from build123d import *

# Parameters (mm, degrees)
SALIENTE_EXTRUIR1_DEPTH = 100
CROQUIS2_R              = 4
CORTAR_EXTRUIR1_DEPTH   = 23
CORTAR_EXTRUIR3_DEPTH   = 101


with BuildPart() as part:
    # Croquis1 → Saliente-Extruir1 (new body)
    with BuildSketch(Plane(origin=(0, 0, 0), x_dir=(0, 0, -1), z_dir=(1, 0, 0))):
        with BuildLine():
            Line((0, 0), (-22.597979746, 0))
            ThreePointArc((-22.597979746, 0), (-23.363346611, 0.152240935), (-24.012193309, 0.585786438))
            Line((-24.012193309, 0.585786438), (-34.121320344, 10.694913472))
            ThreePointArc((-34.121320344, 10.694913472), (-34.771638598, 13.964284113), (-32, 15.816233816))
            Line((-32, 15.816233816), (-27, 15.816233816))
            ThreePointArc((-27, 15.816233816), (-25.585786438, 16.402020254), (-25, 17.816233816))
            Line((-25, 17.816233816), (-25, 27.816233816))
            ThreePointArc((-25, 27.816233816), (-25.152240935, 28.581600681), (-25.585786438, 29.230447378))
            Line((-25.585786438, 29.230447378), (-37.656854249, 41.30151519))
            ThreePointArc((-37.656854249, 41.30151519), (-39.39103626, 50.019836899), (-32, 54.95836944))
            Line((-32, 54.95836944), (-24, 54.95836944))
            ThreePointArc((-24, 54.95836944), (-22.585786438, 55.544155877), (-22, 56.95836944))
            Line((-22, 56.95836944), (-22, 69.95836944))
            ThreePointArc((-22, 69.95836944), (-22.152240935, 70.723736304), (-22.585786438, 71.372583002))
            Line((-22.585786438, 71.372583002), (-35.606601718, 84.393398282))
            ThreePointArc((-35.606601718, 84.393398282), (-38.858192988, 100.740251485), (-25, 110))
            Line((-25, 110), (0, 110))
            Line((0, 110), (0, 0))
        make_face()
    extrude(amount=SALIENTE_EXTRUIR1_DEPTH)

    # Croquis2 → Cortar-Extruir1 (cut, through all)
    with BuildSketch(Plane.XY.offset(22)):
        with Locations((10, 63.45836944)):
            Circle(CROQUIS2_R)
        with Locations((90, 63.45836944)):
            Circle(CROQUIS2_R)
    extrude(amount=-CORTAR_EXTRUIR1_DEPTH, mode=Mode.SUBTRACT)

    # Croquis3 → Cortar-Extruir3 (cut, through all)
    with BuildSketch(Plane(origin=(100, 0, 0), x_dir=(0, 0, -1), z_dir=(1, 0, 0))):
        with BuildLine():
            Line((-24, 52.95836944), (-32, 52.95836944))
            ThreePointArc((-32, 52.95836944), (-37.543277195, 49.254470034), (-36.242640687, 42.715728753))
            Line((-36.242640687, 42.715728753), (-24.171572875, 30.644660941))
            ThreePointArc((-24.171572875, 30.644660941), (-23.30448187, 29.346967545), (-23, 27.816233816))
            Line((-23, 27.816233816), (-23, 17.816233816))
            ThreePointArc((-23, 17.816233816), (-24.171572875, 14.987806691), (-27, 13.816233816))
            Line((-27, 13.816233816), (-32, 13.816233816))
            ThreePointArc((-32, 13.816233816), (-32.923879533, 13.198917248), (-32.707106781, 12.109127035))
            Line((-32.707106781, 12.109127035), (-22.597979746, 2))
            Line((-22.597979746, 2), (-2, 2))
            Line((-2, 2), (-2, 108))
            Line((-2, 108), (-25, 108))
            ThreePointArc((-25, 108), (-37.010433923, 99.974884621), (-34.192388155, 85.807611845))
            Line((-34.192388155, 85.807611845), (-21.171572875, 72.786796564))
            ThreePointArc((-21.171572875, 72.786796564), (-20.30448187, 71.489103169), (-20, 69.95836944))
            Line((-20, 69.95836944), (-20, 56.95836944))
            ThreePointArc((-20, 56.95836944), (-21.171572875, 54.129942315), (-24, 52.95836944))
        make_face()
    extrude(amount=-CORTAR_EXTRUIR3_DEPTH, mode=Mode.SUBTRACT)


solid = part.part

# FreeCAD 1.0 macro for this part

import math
import FreeCAD as App
import Part
import Sketcher
from FreeCAD import Vector
Q = App.Units.Quantity

doc = App.newDocument("Part")
body = doc.addObject("PartDesign::Body", "Body")

# Sketch on YZ plane
sketch1 = body.newObject("Sketcher::SketchObject", "Sketch")
sketch1.AttachmentSupport = (doc.getObject("YZ_Plane"), [""])
sketch1.MapMode = "FlatFace"
sketch1.addGeometry([
    Part.LineSegment(Vector(0, 22.6, 0), Vector(0, 0, 0)),  # 0
    Part.LineSegment(Vector(0, 0, 0), Vector(110, 0, 0)),  # 1
    Part.LineSegment(Vector(110, 0, 0), Vector(110, 25, 0)),  # 2
    Part.ArcOfCircle(Part.Circle(Vector(95, 25, 0), Vector(0, 0, 1), 15), math.radians(0), math.radians(135)),  # 3
    Part.LineSegment(Vector(84.4, 35.6, 0), Vector(71.4, 22.6, 0)),  # 4
    Part.ArcOfCircle(Part.Circle(Vector(70, 24, 0), Vector(0, 0, 1), 2), math.radians(-90), math.radians(-45)),  # 5
    Part.LineSegment(Vector(70, 22, 0), Vector(57, 22, 0)),  # 6
    Part.ArcOfCircle(Part.Circle(Vector(57, 24, 0), Vector(0, 0, 1), 2), math.radians(180), math.radians(270)),  # 7
    Part.LineSegment(Vector(55, 24, 0), Vector(55, 32, 0)),  # 8
    Part.ArcOfCircle(Part.Circle(Vector(47, 32, 0), Vector(0, 0, 1), 8), math.radians(0), math.radians(135)),  # 9
    Part.LineSegment(Vector(41.3, 37.7, 0), Vector(29.2, 25.6, 0)),  # 10
    Part.ArcOfCircle(Part.Circle(Vector(27.8, 27, 0), Vector(0, 0, 1), 2), math.radians(-90), math.radians(-45)),  # 11
    Part.LineSegment(Vector(27.8, 25, 0), Vector(17.8, 25, 0)),  # 12
    Part.ArcOfCircle(Part.Circle(Vector(17.8, 27, 0), Vector(0, 0, 1), 2), math.radians(-180), math.radians(-90)),  # 13
    Part.LineSegment(Vector(15.8, 27, 0), Vector(15.8, 32, 0)),  # 14
    Part.ArcOfCircle(Part.Circle(Vector(12.8, 32, 0), Vector(0, 0, 1), 3), math.radians(0), math.radians(135)),  # 15
    Part.LineSegment(Vector(10.7, 34.1, 0), Vector(0.6, 24, 0)),  # 16
    Part.ArcOfCircle(Part.Circle(Vector(2, 22.6, 0), Vector(0, 0, 1), 2), math.radians(135), math.radians(180)),  # 17
], False)
sketch1.addConstraint([
    Sketcher.Constraint("Coincident", 0, 2, 1, 1),
    Sketcher.Constraint("Coincident", 1, 2, 2, 1),
    Sketcher.Constraint("Tangent", 2, 2, 3, 1),
    Sketcher.Constraint("Tangent", 3, 2, 4, 1),
    Sketcher.Constraint("Tangent", 4, 2, 5, 2),
    Sketcher.Constraint("Tangent", 5, 1, 6, 1),
    Sketcher.Constraint("Tangent", 6, 2, 7, 2),
    Sketcher.Constraint("Tangent", 7, 1, 8, 1),
    Sketcher.Constraint("Tangent", 8, 2, 9, 1),
    Sketcher.Constraint("Tangent", 9, 2, 10, 1),
    Sketcher.Constraint("Tangent", 10, 2, 11, 2),
    Sketcher.Constraint("Tangent", 11, 1, 12, 1),
    Sketcher.Constraint("Tangent", 12, 2, 13, 2),
    Sketcher.Constraint("Tangent", 13, 1, 14, 1),
    Sketcher.Constraint("Tangent", 14, 2, 15, 1),
    Sketcher.Constraint("Tangent", 15, 2, 16, 1),
    Sketcher.Constraint("Tangent", 16, 2, 17, 1),
    Sketcher.Constraint("Tangent", 17, 2, 0, 1),
    Sketcher.Constraint("Vertical", 0),
    Sketcher.Constraint("Horizontal", 1),
    Sketcher.Constraint("Vertical", 2),
    Sketcher.Constraint("Horizontal", 6),
    Sketcher.Constraint("Vertical", 8),
    Sketcher.Constraint("Horizontal", 12),
    Sketcher.Constraint("Vertical", 14),
    Sketcher.Constraint("Coincident", 0, 2, -1, 1),
    Sketcher.Constraint("Equal", 5, 7),
    Sketcher.Constraint("Equal", 7, 11),
    Sketcher.Constraint("Equal", 11, 13),
    Sketcher.Constraint("Equal", 13, 17),
    Sketcher.Constraint("Parallel", 4, 10),
    Sketcher.Constraint("Parallel", 10, 16),
    Sketcher.Constraint("Horizontal", 9, 3, 15, 3),
    Sketcher.Constraint("Horizontal", 2, 2, 11, 1),
    Sketcher.Constraint("Radius", 3, Q("15 mm")),
    Sketcher.Constraint("Radius", 5, Q("2 mm")),
    Sketcher.Constraint("Radius", 9, Q("8 mm")),
    Sketcher.Constraint("Radius", 15, Q("3 mm")),
    Sketcher.Constraint("DistanceX", 1, 1, 1, 2, Q("110 mm")),
    Sketcher.Constraint("DistanceX", 6, 2, 6, 1, Q("13 mm")),
    Sketcher.Constraint("DistanceX", 12, 2, 12, 1, Q("10 mm")),
    Sketcher.Constraint("DistanceY", 2, 1, 2, 2, Q("25 mm")),
    Sketcher.Constraint("DistanceY", 8, 1, 8, 2, Q("8 mm")),
    Sketcher.Constraint("DistanceY", 14, 1, 14, 2, Q("5 mm")),
    Sketcher.Constraint("Angle", 4, Q("-135 deg")),
])
pad1 = body.newObject("PartDesign::Pad", "Pad")
pad1.Profile = sketch1
pad1.Length = 100

# Sketch on XY plane
sketch2 = body.newObject("Sketcher::SketchObject", "Sketch001")
sketch2.AttachmentSupport = (doc.getObject("XY_Plane"), [""])
sketch2.MapMode = "FlatFace"
sketch2.AttachmentOffset = App.Placement(Vector(0, 0, 22), App.Rotation())
sketch2.addGeometry([
    Part.Circle(Vector(10, 63.5, 0), Vector(0, 0, 1), 4),
    Part.Circle(Vector(90, 63.5, 0), Vector(0, 0, 1), 4),
], False)
sketch2.addConstraint([
    Sketcher.Constraint("Equal", 0, 1),
    Sketcher.Constraint("Horizontal", 0, 3, 1, 3),
    Sketcher.Constraint("Diameter", 0, Q("8 mm")),
    Sketcher.Constraint("DistanceX", -1, 1, 0, 3, Q("10 mm")),
    Sketcher.Constraint("DistanceX", -1, 1, 1, 3, Q("90 mm")),
    Sketcher.Constraint("DistanceY", -1, 1, 0, 3, Q("63.458369 mm")),
])
pocket1 = body.newObject("PartDesign::Pocket", "Pocket")
pocket1.Profile = sketch2
pocket1.Type = "ThroughAll"

# Sketch on YZ plane
sketch3 = body.newObject("Sketcher::SketchObject", "Sketch002")
sketch3.AttachmentSupport = (doc.getObject("YZ_Plane"), [""])
sketch3.MapMode = "FlatFace"
sketch3.AttachmentOffset = App.Placement(Vector(0, 0, 100), App.Rotation())
sketch3.addGeometry([
    Part.LineSegment(Vector(53, 24, 0), Vector(53, 32, 0)),  # 0
    Part.ArcOfCircle(Part.Circle(Vector(47, 32, 0), Vector(0, 0, 1), 6), math.radians(0), math.radians(135)),  # 1
    Part.LineSegment(Vector(42.7, 36.2, 0), Vector(30.6, 24.2, 0)),  # 2
    Part.ArcOfCircle(Part.Circle(Vector(27.8, 27, 0), Vector(0, 0, 1), 4), math.radians(-90), math.radians(-45)),  # 3
    Part.LineSegment(Vector(27.8, 23, 0), Vector(17.8, 23, 0)),  # 4
    Part.ArcOfCircle(Part.Circle(Vector(17.8, 27, 0), Vector(0, 0, 1), 4), math.radians(180), math.radians(270)),  # 5
    Part.LineSegment(Vector(13.8, 27, 0), Vector(13.8, 32, 0)),  # 6
    Part.ArcOfCircle(Part.Circle(Vector(12.8, 32, 0), Vector(0, 0, 1), 1), math.radians(0), math.radians(135)),  # 7
    Part.LineSegment(Vector(12.1, 32.7, 0), Vector(2, 22.6, 0)),  # 8
    Part.LineSegment(Vector(2, 22.6, 0), Vector(2, 2, 0)),  # 9
    Part.LineSegment(Vector(2, 2, 0), Vector(108, 2, 0)),  # 10
    Part.LineSegment(Vector(108, 2, 0), Vector(108, 25, 0)),  # 11
    Part.ArcOfCircle(Part.Circle(Vector(95, 25, 0), Vector(0, 0, 1), 13), math.radians(0), math.radians(135)),  # 12
    Part.LineSegment(Vector(85.8, 34.2, 0), Vector(72.8, 21.2, 0)),  # 13
    Part.ArcOfCircle(Part.Circle(Vector(70, 24, 0), Vector(0, 0, 1), 4), math.radians(-90), math.radians(-45)),  # 14
    Part.LineSegment(Vector(70, 20, 0), Vector(57, 20, 0)),  # 15
    Part.ArcOfCircle(Part.Circle(Vector(57, 24, 0), Vector(0, 0, 1), 4), math.radians(180), math.radians(270)),  # 16
], False)
sketch3.addConstraint([
    Sketcher.Constraint("Tangent", 0, 2, 1, 1),
    Sketcher.Constraint("Tangent", 1, 2, 2, 1),
    Sketcher.Constraint("Tangent", 2, 2, 3, 2),
    Sketcher.Constraint("Tangent", 3, 1, 4, 1),
    Sketcher.Constraint("Tangent", 4, 2, 5, 2),
    Sketcher.Constraint("Tangent", 5, 1, 6, 1),
    Sketcher.Constraint("Tangent", 6, 2, 7, 1),
    Sketcher.Constraint("Tangent", 7, 2, 8, 1),
    Sketcher.Constraint("Coincident", 8, 2, 9, 1),
    Sketcher.Constraint("Coincident", 9, 2, 10, 1),
    Sketcher.Constraint("Coincident", 10, 2, 11, 1),
    Sketcher.Constraint("Tangent", 11, 2, 12, 1),
    Sketcher.Constraint("Tangent", 12, 2, 13, 1),
    Sketcher.Constraint("Tangent", 13, 2, 14, 2),
    Sketcher.Constraint("Tangent", 14, 1, 15, 1),
    Sketcher.Constraint("Tangent", 15, 2, 16, 2),
    Sketcher.Constraint("Tangent", 16, 1, 0, 1),
    Sketcher.Constraint("Vertical", 0),
    Sketcher.Constraint("Horizontal", 4),
    Sketcher.Constraint("Vertical", 6),
    Sketcher.Constraint("Vertical", 9),
    Sketcher.Constraint("Horizontal", 10),
    Sketcher.Constraint("Vertical", 11),
    Sketcher.Constraint("Horizontal", 15),
    Sketcher.Constraint("Equal", 3, 5),
    Sketcher.Constraint("Equal", 5, 14),
    Sketcher.Constraint("Equal", 14, 16),
    Sketcher.Constraint("Parallel", 2, 8),
    Sketcher.Constraint("Parallel", 8, 13),
    Sketcher.Constraint("Horizontal", 1, 3, 7, 3),
    Sketcher.Constraint("Radius", 1, Q("6 mm")),
    Sketcher.Constraint("Radius", 3, Q("4 mm")),
    Sketcher.Constraint("Radius", 7, Q("1 mm")),
    Sketcher.Constraint("Radius", 12, Q("13 mm")),
    Sketcher.Constraint("DistanceX", 4, 2, 4, 1, Q("10 mm")),
    Sketcher.Constraint("DistanceX", 10, 1, 10, 2, Q("106 mm")),
    Sketcher.Constraint("DistanceX", 15, 2, 15, 1, Q("13 mm")),
    Sketcher.Constraint("DistanceY", 0, 1, 0, 2, Q("8 mm")),
    Sketcher.Constraint("DistanceY", 6, 1, 6, 2, Q("5 mm")),
    Sketcher.Constraint("DistanceY", 11, 1, 11, 2, Q("23 mm")),
    Sketcher.Constraint("Angle", 2, Q("-135 deg")),
    Sketcher.Constraint("DistanceY", -1, 1, 1, 3, Q("32 mm")),
    Sketcher.Constraint("DistanceX", -1, 1, 12, 3, Q("95 mm")),
    Sketcher.Constraint("DistanceY", -1, 1, 12, 3, Q("25 mm")),
])
pocket2 = body.newObject("PartDesign::Pocket", "Pocket001")
pocket2.Profile = sketch3
pocket2.Type = "ThroughAll"

doc.recompute()
